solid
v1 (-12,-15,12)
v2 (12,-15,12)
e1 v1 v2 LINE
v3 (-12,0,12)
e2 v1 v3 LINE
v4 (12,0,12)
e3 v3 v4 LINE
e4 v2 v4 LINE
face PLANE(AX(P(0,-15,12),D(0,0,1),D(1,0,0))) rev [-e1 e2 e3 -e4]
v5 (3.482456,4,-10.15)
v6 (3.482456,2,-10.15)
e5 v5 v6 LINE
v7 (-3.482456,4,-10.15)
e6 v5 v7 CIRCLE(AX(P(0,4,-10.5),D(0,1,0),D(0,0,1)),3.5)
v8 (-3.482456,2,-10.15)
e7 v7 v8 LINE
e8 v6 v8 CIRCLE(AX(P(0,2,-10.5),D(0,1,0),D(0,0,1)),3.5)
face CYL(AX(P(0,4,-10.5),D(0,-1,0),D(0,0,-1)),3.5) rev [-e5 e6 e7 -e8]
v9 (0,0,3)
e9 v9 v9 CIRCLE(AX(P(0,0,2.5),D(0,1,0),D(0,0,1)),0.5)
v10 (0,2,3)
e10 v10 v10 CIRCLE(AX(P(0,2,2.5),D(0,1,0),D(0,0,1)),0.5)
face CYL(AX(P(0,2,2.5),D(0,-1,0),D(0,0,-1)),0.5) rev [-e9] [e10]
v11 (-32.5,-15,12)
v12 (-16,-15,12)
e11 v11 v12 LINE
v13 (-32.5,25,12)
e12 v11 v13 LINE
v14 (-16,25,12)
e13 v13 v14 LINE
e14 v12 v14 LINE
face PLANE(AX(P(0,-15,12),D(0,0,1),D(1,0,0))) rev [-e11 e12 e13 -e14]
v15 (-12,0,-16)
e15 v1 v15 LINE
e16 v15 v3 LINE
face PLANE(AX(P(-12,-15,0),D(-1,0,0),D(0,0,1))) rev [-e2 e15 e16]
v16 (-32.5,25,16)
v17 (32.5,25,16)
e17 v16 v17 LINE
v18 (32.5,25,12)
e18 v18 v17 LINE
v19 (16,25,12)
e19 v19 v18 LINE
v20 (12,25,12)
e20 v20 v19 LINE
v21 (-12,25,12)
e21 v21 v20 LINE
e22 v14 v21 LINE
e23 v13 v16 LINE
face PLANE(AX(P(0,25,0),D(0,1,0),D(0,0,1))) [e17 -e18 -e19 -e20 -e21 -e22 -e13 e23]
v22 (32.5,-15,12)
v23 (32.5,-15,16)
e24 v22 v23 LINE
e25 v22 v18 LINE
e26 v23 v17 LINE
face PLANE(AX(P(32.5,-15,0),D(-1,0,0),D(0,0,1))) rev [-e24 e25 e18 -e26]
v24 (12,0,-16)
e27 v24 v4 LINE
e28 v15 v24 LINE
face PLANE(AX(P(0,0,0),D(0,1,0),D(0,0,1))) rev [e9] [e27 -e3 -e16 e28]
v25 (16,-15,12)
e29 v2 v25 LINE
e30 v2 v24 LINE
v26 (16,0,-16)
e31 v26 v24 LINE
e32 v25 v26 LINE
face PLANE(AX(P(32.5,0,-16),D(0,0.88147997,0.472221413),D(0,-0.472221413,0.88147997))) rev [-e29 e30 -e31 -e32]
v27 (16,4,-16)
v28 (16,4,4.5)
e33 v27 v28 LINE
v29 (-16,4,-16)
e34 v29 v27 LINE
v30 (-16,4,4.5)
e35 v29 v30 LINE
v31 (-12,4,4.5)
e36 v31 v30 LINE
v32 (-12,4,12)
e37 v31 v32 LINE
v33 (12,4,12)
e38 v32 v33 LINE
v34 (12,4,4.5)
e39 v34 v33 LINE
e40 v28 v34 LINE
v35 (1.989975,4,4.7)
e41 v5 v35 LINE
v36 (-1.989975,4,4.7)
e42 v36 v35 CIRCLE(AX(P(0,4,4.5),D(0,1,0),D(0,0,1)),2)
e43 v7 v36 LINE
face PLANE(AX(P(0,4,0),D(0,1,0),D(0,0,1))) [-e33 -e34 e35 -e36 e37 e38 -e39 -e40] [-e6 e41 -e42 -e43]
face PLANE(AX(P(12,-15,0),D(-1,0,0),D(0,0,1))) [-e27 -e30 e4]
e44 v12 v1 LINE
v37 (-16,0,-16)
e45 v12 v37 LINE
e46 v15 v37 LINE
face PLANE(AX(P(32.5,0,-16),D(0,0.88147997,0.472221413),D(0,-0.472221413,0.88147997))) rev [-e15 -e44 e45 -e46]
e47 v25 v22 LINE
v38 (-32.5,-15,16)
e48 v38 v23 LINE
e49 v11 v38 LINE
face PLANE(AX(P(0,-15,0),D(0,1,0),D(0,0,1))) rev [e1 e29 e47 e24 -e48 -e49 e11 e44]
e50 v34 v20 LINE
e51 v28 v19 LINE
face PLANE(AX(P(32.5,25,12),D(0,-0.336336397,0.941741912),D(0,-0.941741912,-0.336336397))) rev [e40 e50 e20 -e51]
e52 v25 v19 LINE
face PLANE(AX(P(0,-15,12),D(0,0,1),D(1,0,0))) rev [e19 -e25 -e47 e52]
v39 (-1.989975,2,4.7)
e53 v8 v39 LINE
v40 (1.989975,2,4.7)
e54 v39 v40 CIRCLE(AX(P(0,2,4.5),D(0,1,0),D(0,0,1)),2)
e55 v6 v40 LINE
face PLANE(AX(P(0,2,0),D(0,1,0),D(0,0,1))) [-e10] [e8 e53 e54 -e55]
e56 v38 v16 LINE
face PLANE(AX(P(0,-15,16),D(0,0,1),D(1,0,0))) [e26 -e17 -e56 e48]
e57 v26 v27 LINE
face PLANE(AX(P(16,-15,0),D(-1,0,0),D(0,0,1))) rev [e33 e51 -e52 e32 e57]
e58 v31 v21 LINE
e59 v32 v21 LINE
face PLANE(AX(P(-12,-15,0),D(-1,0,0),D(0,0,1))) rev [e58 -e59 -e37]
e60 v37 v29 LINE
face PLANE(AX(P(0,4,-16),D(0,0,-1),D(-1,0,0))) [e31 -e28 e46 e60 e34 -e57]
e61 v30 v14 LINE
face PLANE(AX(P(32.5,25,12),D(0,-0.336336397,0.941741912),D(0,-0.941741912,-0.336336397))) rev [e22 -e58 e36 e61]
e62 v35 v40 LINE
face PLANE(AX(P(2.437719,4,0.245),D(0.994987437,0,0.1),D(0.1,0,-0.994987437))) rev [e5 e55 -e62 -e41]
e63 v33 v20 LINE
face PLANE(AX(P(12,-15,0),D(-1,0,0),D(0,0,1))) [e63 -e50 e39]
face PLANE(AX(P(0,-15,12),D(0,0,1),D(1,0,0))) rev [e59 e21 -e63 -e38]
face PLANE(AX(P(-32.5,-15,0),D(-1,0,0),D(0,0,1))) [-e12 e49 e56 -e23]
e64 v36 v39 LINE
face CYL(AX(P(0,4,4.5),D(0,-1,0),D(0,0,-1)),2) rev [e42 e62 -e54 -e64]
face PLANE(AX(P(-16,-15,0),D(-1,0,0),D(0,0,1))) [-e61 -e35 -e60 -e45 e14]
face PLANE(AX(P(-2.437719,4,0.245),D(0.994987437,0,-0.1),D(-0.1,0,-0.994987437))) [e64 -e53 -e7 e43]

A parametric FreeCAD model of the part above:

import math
import FreeCAD as App
import Part
import Sketcher

V = App.Vector
Q = App.Units.Quantity


def add_polygon(sketch, points):
    """Adds a closed chain of lines whose ends are joined by coincident constraints."""
    first, n = sketch.GeometryCount, len(points)
    for a, b in zip(points, points[1:] + points[:1]):
        sketch.addGeometry(Part.LineSegment(App.Vector(*a, 0), App.Vector(*b, 0)), False)
    for i in range(n):
        sketch.addConstraint(Sketcher.Constraint("Coincident", first + i, 2, first + (i + 1) % n, 1))

doc = App.newDocument("Part")
body = doc.addObject("PartDesign::Body", "Body")

# Sketch on XZ plane
sketch1 = body.newObject("Sketcher::SketchObject", "Sketch")
sketch1.AttachmentSupport = (doc.getObject("XZ_Plane"), [""])
sketch1.MapMode = "FlatFace"
add_polygon(sketch1, [(-12, -16), (-12, 12), (12, 12), (12, -16)])  # lines 0-3
sketch1.addGeometry(Part.ArcOfCircle(Part.Circle(V(0, 4.5, 0), V(0, 0, 1), 2), math.radians(6), math.radians(174)), False)  # 4
sketch1.addGeometry(Part.LineSegment(V(-1.99, 4.7, 0), V(-3.48, -10.15, 0)), False)  # 5
sketch1.addGeometry(Part.ArcOfCircle(Part.Circle(V(0, -10.5, 0), V(0, 0, 1), 3.5), math.radians(174), math.radians(360)), False)  # 6
sketch1.addGeometry(Part.ArcOfCircle(Part.Circle(V(0, -10.5, 0), V(0, 0, 1), 3.5), math.radians(0), math.radians(5.74)), False)  # 7
sketch1.addGeometry(Part.LineSegment(V(3.48, -10.15, 0), V(1.99, 4.7, 0)), False)  # 8
sketch1.addConstraint([
    Sketcher.Constraint("Tangent", 4, 2, 5, 1),
    Sketcher.Constraint("Tangent", 5, 2, 6, 1),
    Sketcher.Constraint("Tangent", 6, 2, 7, 1),
    Sketcher.Constraint("Tangent", 7, 2, 8, 1),
    Sketcher.Constraint("Tangent", 8, 2, 4, 1),
    Sketcher.Constraint("Vertical", 0),
    Sketcher.Constraint("Horizontal", 1),
    Sketcher.Constraint("Vertical", 2),
    Sketcher.Constraint("Horizontal", 3),
    Sketcher.Constraint("Equal", 6, 7),
    Sketcher.Constraint("Symmetric", 5, 2, 7, 2, -2),
    Sketcher.Constraint("Horizontal", 7, 3, 6, 2),
    Sketcher.Constraint("Radius", 4, Q("2 mm")),
    Sketcher.Constraint("Radius", 6, Q("3.5 mm")),
    Sketcher.Constraint("DistanceX", 1, 1, 1, 2, Q("24 mm")),
    Sketcher.Constraint("DistanceY", 0, 1, 0, 2, Q("28 mm")),
    Sketcher.Constraint("DistanceX", 0, 2, -1, 1, Q("12 mm")),
    Sketcher.Constraint("DistanceY", -1, 1, 0, 2, Q("12 mm")),
    Sketcher.Constraint("DistanceY", 6, 3, 4, 3, Q("15 mm")),
    Sketcher.Constraint("DistanceY", -1, 1, 4, 3, Q("4.5 mm")),
])
pad1 = body.newObject("PartDesign::Pad", "Pad")
pad1.Profile = sketch1
pad1.Length = 4
pad1.Reversed = True

# Sketch on XZ plane
sketch2 = body.newObject("Sketcher::SketchObject", "Sketch001")
sketch2.AttachmentSupport = (doc.getObject("XZ_Plane"), [""])
sketch2.MapMode = "FlatFace"
sketch2.addGeometry([
    Part.LineSegment(V(2, 4.7, 0), V(3.5, -10.2, 0)),  # 0
    Part.ArcOfCircle(Part.Circle(V(0, -10.5, 0), V(0, 0, 1), 3.5), math.radians(174), math.radians(366)),  # 1
    Part.LineSegment(V(-3.5, -10.2, 0), V(-2, 4.7, 0)),  # 2
    Part.ArcOfCircle(Part.Circle(V(0, 4.5, 0), V(0, 0, 1), 2), math.radians(6), math.radians(174)),  # 3
    Part.Circle(V(0, 2.5, 0), V(0, 0, 1), 0.5),  # 4
], False)
sketch2.addConstraint([
    Sketcher.Constraint("Tangent", 0, 2, 1, 2),
    Sketcher.Constraint("Tangent", 1, 1, 2, 1),
    Sketcher.Constraint("Tangent", 2, 2, 3, 2),
    Sketcher.Constraint("Tangent", 3, 1, 0, 1),
    Sketcher.Constraint("Symmetric", 0, 2, 1, 1, -2),
    Sketcher.Constraint("PointOnObject", 4, 3, -2),
    Sketcher.Constraint("Diameter", 4, Q("1 mm")),
    Sketcher.Constraint("Radius", 3, Q("2 mm")),
    Sketcher.Constraint("Radius", 1, Q("3.5 mm")),
    Sketcher.Constraint("DistanceY", 1, 3, 3, 3, Q("15 mm")),
    Sketcher.Constraint("DistanceY", 4, 3, 3, 3, Q("2 mm")),
    Sketcher.Constraint("DistanceY", 1, 3, -1, 1, Q("10.5 mm")),
])
pad2 = body.newObject("PartDesign::Pad", "Pad001")
pad2.Profile = sketch2
pad2.Length = 2
pad2.Reversed = True

# Sketch on XZ plane
sketch3 = body.newObject("Sketcher::SketchObject", "Sketch002")
sketch3.AttachmentSupport = (doc.getObject("XZ_Plane"), [""])
sketch3.MapMode = "FlatFace"
add_polygon(sketch3, [(-16, -16), (-16, 12), (-32.5, 12), (-32.5, 16), (32.5, 16), (32.5, 12), (16, 12), (16, -16), (12, -16), (12, 12), (-12, 12), (-12, -16)])  # lines 0-11
sketch3.addConstraint([
    Sketcher.Constraint("Vertical", 0),
    Sketcher.Constraint("Horizontal", 1),
    Sketcher.Constraint("Vertical", 2),
    Sketcher.Constraint("Horizontal", 3),
    Sketcher.Constraint("Vertical", 4),
    Sketcher.Constraint("Horizontal", 5),
    Sketcher.Constraint("Vertical", 6),
    Sketcher.Constraint("Horizontal", 7),
    Sketcher.Constraint("Vertical", 8),
    Sketcher.Constraint("Horizontal", 9),
    Sketcher.Constraint("Vertical", 10),
    Sketcher.Constraint("Horizontal", 11),
    Sketcher.Constraint("Symmetric", 1, 2, 4, 2, -2),
    Sketcher.Constraint("Symmetric", 7, 2, 10, 2, -2),
    Sketcher.Constraint("Horizontal", 5, 2, 8, 2),
    Sketcher.Constraint("Equal", 1, 5),
    Sketcher.Constraint("Equal", 11, 2),
    Sketcher.Constraint("DistanceX", 3, 1, 3, 2, Q("65 mm")),
    Sketcher.Constraint("DistanceX", 7, 2, 7, 1, Q("4 mm")),
    Sketcher.Constraint("DistanceX", 9, 2, 9, 1, Q("24 mm")),
    Sketcher.Constraint("DistanceY", 0, 1, 0, 2, Q("28 mm")),
    Sketcher.Constraint("DistanceY", -1, 1, 0, 2, Q("12 mm")),
])
pad3 = body.newObject("PartDesign::Pad", "Pad002")
pad3.Profile = sketch3
pad3.Type = "TwoLengths"
pad3.Length = 25
pad3.Length2 = 15
pad3.Reversed = True

# Sketch on YZ plane
sketch4 = body.newObject("Sketcher::SketchObject", "Sketch003")
sketch4.AttachmentSupport = (doc.getObject("YZ_Plane"), [""])
sketch4.MapMode = "FlatFace"
sketch4.AttachmentOffset = App.Placement(V(0, 0, 12), App.Rotation())
add_polygon(sketch4, [(4, -16), (25, 12), (25, -16)])  # lines 0-2
sketch4.addConstraint([
    Sketcher.Constraint("Vertical", 1),
    Sketcher.Constraint("Horizontal", 2),
    Sketcher.Constraint("DistanceX", 2, 2, 2, 1, Q("21 mm")),
    Sketcher.Constraint("DistanceY", 1, 2, 1, 1, Q("28 mm")),
    Sketcher.Constraint("DistanceX", -1, 1, 0, 2, Q("25 mm")),
    Sketcher.Constraint("DistanceY", -1, 1, 0, 2, Q("12 mm")),
])
pocket1 = body.newObject("PartDesign::Pocket", "Pocket")
pocket1.Profile = sketch4
pocket1.Type = "ThroughAll"
pocket1.Midplane = True

# Sketch on YZ plane
sketch5 = body.newObject("Sketcher::SketchObject", "Sketch004")
sketch5.AttachmentSupport = (doc.getObject("YZ_Plane"), [""])
sketch5.MapMode = "FlatFace"
sketch5.AttachmentOffset = App.Placement(V(0, 0, 12), App.Rotation())
add_polygon(sketch5, [(-15, 12), (0, -16), (-15, -16)])  # lines 0-2
sketch5.addConstraint([
    Sketcher.Constraint("Horizontal", 1),
    Sketcher.Constraint("Vertical", 2),
    Sketcher.Constraint("PointOnObject", 0, 2, -2),
    Sketcher.Constraint("DistanceX", 1, 2, 1, 1, Q("15 mm")),
    Sketcher.Constraint("DistanceY", 2, 1, 2, 2, Q("28 mm")),
    Sketcher.Constraint("DistanceY", 0, 2, -1, 1, Q("16 mm")),
])
pocket2 = body.newObject("PartDesign::Pocket", "Pocket001")
pocket2.Profile = sketch5
pocket2.Type = "ThroughAll"
pocket2.Midplane = True

# Sketch on YZ plane
sketch6 = body.newObject("Sketcher::SketchObject", "Sketch005")
sketch6.AttachmentSupport = (doc.getObject("YZ_Plane"), [""])
sketch6.MapMode = "FlatFace"
sketch6.AttachmentOffset = App.Placement(V(0, 0, 12), App.Rotation())
add_polygon(sketch6, [(4, -16), (4, 4), (25, 12), (17, 1)])  # lines 0-3
sketch6.addConstraint([
    Sketcher.Constraint("Vertical", 0),
    Sketcher.Constraint("Parallel", 2, 3),
    Sketcher.Constraint("DistanceY", 0, 1, 0, 2, Q("20.5 mm")),
    Sketcher.Constraint("DistanceX", -1, 1, 0, 2, Q("4 mm")),
    Sketcher.Constraint("DistanceX", -1, 1, 1, 2, Q("25 mm")),
    Sketcher.Constraint("DistanceY", -1, 1, 1, 2, Q("12 mm")),
    Sketcher.Constraint("DistanceY", 3, 2, -1, 1, Q("16 mm")),
    Sketcher.Constraint("Distance", 2, Q("14.158701 mm")),
])
pocket3 = body.newObject("PartDesign::Pocket", "Pocket002")
pocket3.Profile = sketch6
pocket3.Type = "ThroughAll"
pocket3.Midplane = True

doc.recompute()
